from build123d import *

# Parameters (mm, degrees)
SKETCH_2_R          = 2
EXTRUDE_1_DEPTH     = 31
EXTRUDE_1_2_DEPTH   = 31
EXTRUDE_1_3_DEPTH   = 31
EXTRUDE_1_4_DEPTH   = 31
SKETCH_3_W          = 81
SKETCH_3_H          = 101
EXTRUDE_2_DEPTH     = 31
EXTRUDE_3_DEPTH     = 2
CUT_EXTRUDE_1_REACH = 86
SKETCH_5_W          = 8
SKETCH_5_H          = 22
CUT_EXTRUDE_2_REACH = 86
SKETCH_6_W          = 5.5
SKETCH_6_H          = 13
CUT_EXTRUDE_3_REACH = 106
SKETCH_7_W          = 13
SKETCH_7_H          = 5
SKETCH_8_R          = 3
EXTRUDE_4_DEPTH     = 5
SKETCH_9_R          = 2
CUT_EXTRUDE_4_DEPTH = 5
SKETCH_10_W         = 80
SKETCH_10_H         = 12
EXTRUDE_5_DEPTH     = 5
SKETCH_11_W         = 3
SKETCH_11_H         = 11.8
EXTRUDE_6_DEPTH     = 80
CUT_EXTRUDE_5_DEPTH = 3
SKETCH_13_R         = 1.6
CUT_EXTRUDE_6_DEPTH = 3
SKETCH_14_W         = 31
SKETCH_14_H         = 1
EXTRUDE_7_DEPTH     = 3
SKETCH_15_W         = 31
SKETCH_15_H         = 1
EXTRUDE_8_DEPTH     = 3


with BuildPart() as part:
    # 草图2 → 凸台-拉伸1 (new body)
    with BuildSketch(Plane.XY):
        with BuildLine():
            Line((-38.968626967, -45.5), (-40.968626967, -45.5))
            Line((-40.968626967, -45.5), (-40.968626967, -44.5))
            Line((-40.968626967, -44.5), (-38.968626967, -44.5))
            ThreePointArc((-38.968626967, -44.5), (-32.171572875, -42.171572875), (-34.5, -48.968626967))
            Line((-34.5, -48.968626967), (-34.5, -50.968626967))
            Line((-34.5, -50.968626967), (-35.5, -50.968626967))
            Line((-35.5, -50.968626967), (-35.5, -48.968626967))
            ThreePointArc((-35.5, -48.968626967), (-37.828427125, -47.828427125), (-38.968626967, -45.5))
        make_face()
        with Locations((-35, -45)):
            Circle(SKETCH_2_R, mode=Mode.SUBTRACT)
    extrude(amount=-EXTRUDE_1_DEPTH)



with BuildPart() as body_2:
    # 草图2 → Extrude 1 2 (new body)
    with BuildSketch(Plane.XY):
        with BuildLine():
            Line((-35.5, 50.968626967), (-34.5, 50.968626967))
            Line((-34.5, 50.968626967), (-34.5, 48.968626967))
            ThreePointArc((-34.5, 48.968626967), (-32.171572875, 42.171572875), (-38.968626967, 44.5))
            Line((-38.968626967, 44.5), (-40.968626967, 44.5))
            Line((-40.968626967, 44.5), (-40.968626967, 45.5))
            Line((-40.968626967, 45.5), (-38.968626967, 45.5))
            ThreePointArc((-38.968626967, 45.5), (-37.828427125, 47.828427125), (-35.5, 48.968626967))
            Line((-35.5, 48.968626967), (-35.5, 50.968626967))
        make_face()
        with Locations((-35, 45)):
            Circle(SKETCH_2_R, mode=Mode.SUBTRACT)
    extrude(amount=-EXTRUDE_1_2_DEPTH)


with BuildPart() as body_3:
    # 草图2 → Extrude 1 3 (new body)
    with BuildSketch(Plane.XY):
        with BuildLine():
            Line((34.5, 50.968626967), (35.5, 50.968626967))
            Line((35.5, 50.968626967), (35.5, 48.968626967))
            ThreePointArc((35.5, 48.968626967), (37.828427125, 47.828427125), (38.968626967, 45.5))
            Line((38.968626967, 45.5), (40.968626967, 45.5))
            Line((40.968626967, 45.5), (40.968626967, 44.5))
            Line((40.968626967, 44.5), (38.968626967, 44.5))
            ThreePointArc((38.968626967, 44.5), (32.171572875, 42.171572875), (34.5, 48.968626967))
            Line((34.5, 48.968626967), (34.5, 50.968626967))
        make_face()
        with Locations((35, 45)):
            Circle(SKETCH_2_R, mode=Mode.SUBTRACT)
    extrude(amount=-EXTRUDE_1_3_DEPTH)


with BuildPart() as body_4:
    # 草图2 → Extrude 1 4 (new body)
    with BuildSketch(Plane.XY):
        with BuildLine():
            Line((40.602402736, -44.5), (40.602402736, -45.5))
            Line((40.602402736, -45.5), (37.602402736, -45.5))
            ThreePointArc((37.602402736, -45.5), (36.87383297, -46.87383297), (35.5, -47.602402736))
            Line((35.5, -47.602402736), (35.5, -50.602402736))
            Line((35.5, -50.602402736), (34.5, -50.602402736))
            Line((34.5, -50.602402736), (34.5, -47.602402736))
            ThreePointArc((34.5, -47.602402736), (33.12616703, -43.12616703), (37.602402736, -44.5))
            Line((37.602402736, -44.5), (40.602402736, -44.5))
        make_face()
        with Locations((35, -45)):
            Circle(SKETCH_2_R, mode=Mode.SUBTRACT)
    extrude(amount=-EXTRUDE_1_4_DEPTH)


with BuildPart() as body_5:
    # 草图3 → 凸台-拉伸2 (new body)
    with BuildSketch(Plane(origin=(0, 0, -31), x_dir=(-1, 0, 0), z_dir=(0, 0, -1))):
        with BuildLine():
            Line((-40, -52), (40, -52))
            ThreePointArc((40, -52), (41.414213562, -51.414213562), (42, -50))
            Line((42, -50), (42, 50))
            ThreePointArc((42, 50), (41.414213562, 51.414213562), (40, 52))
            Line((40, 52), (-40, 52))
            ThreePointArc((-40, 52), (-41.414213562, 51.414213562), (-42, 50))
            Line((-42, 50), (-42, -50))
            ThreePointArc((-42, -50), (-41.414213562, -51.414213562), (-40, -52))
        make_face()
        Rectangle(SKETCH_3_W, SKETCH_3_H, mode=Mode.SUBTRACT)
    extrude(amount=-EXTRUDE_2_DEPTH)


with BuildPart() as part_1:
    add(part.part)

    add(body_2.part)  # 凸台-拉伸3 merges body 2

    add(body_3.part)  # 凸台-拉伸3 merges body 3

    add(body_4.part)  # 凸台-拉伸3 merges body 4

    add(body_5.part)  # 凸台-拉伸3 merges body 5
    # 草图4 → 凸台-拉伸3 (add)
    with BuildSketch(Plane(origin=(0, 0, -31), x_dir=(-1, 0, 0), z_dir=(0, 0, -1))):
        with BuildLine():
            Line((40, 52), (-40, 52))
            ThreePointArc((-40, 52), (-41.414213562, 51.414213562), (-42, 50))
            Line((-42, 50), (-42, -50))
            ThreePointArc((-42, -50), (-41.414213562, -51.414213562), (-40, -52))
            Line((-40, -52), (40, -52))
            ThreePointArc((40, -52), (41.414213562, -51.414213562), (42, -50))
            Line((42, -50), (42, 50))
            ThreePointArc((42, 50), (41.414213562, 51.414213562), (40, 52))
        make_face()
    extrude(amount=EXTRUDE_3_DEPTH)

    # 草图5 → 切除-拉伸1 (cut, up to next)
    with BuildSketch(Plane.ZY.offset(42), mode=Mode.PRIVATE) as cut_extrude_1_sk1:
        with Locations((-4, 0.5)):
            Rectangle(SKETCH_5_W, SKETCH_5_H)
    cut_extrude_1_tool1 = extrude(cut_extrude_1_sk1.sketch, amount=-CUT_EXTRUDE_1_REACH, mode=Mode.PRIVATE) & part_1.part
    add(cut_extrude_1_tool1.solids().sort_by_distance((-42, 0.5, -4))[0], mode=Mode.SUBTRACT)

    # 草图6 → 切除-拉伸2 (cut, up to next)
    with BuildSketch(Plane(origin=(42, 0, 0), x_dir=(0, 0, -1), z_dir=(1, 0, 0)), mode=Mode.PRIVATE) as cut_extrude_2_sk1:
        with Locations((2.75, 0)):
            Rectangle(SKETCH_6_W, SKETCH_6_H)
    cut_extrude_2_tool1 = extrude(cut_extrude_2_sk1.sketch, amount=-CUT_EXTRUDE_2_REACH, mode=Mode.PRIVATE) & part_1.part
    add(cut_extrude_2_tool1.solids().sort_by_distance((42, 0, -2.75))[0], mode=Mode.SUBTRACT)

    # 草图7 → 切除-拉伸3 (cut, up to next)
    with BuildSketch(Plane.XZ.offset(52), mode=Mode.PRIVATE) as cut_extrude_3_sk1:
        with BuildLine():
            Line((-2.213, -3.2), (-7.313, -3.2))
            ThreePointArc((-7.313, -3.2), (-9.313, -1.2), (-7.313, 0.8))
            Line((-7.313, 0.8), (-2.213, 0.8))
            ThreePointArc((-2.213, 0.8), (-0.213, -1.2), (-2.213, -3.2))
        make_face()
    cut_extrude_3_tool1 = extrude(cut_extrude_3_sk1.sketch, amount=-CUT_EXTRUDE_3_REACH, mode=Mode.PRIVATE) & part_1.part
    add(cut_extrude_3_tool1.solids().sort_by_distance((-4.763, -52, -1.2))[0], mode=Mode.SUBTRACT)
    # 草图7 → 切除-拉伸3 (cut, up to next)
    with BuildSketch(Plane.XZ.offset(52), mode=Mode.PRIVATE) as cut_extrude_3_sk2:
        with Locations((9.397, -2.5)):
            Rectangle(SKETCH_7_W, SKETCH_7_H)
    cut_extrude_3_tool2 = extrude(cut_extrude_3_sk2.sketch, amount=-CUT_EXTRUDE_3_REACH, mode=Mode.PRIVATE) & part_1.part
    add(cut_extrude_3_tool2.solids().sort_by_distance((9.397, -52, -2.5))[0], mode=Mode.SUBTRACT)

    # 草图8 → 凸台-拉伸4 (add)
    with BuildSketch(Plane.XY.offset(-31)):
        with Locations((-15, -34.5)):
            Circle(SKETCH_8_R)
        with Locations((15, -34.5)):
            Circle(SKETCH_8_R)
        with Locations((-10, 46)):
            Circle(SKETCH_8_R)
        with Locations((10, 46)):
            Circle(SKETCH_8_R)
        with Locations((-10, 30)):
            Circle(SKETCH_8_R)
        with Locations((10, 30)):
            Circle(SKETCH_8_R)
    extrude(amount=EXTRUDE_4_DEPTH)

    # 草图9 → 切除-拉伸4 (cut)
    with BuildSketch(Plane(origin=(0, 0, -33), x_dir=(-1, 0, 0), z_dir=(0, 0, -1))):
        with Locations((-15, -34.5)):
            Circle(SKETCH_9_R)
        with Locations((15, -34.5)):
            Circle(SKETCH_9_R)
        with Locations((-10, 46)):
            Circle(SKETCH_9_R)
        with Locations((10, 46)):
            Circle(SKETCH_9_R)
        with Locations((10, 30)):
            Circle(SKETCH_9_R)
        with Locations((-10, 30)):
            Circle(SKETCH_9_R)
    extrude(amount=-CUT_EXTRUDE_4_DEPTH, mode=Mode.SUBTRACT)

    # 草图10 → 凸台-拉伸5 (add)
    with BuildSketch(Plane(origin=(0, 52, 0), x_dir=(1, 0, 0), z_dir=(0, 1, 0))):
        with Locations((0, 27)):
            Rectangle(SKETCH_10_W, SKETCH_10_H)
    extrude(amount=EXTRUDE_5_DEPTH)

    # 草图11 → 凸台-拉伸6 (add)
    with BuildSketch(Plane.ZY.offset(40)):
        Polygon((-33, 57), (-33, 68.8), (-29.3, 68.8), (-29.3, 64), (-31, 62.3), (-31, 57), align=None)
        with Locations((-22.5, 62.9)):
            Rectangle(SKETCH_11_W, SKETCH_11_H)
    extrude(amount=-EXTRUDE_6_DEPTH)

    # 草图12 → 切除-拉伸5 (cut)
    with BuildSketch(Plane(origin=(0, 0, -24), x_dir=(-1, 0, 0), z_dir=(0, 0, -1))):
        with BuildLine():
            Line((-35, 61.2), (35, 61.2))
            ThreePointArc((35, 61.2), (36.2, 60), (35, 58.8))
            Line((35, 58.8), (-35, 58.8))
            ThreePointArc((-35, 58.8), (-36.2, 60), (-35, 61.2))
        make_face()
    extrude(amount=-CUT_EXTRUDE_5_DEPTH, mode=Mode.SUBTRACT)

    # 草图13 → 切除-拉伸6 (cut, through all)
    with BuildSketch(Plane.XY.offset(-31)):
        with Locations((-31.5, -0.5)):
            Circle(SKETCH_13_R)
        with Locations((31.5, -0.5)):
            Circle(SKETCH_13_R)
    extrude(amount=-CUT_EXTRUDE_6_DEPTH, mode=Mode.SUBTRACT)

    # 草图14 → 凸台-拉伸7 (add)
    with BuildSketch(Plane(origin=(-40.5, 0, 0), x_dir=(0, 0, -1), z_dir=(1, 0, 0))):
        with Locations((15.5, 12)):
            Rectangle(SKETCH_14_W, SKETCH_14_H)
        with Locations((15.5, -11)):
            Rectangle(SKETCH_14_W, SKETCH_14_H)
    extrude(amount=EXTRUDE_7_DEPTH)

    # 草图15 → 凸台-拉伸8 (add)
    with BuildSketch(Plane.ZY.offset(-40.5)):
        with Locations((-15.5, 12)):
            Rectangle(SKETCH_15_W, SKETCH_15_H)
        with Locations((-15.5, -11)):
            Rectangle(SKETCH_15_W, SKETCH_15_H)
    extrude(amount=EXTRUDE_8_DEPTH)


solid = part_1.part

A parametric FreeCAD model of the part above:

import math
import FreeCAD as App
import Part
import Sketcher
from FreeCAD import Vector
Q = App.Units.Quantity


def add_polygon(sketch, points):
    """Adds a closed chain of lines whose ends are joined by coincident constraints."""
    first, n = sketch.GeometryCount, len(points)
    for a, b in zip(points, points[1:] + points[:1]):
        sketch.addGeometry(Part.LineSegment(App.Vector(*a, 0), App.Vector(*b, 0)), False)
    for i in range(n):
        sketch.addConstraint(Sketcher.Constraint("Coincident", first + i, 2, first + (i + 1) % n, 1))

doc = App.newDocument("Part")
body = doc.addObject("PartDesign::Body", "Body")

sketch1 = body.newObject("Sketcher::SketchObject", "Sketch")
sketch1.AttachmentSupport = (doc.getObject("XY_Plane"), [""])
sketch1.MapMode = "FlatFace"
sketch1.addGeometry([
    Part.LineSegment(Vector(-41, -45.5, 0), Vector(-39, -45.5, 0)),
    Part.ArcOfCircle(Part.Circle(Vector(-35, -45, 0), Vector(0, 0, 1), 4), math.radians(-173), math.radians(-97)),
    Part.LineSegment(Vector(-35.5, -49, 0), Vector(-35.5, -51, 0)),
    Part.LineSegment(Vector(-35.5, -51, 0), Vector(-34.5, -51, 0)),
    Part.LineSegment(Vector(-34.5, -51, 0), Vector(-34.5, -49, 0)),
    Part.ArcOfCircle(Part.Circle(Vector(-35, -45, 0), Vector(0, 0, 1), 4), math.radians(-83), math.radians(173)),
    Part.LineSegment(Vector(-39, -44.5, 0), Vector(-41, -44.5, 0)),
    Part.LineSegment(Vector(-41, -44.5, 0), Vector(-41, -45.5, 0)),
    Part.Circle(Vector(-35, -45, 0), Vector(0, 0, 1), 2),
], False)
sketch1.addConstraint([
    Sketcher.Constraint("Coincident", 0, 2, 1, 1),
    Sketcher.Constraint("Coincident", 1, 2, 2, 1),
    Sketcher.Constraint("Coincident", 2, 2, 3, 1),
    Sketcher.Constraint("Coincident", 3, 2, 4, 1),
    Sketcher.Constraint("Coincident", 4, 2, 5, 1),
    Sketcher.Constraint("Coincident", 5, 2, 6, 1),
    Sketcher.Constraint("Coincident", 6, 2, 7, 1),
    Sketcher.Constraint("Coincident", 7, 2, 0, 1),
    Sketcher.Constraint("Horizontal", 0),
    Sketcher.Constraint("Vertical", 2),
    Sketcher.Constraint("Horizontal", 3),
    Sketcher.Constraint("Vertical", 4),
    Sketcher.Constraint("Horizontal", 6),
    Sketcher.Constraint("Vertical", 7),
    Sketcher.Constraint("Coincident", 5, 3, 1, 3),
    Sketcher.Constraint("Coincident", 8, 3, 1, 3),
    Sketcher.Constraint("Equal", 1, 5),
    Sketcher.Constraint("Horizontal", 1, 2, 4, 2),
    Sketcher.Constraint("Vertical", 0, 2, 5, 2),
    Sketcher.Constraint("Equal", 6, 2),
    Sketcher.Constraint("Equal", 3, 7),
    Sketcher.Constraint("Diameter", 8, 4.0),
    Sketcher.Constraint("Radius", 1, 4.0),
    Sketcher.Constraint("DistanceX", 0, 1, 0, 2, 2.0),
    Sketcher.Constraint("DistanceX", 3, 1, 3, 2, 1.0),
    Sketcher.Constraint("DistanceX", 1, 3, -1, 1, 35.0),
    Sketcher.Constraint("DistanceY", 1, 3, -1, 1, 45.0),
])
pad1 = body.newObject("PartDesign::Pad", "Pad")
pad1.Profile = sketch1
pad1.Length = 31
pad1.Reversed = True
body2 = doc.addObject("PartDesign::Body", "Body001")

sketch2 = body2.newObject("Sketcher::SketchObject", "Sketch001")
sketch2.AttachmentSupport = (doc.getObject("XY_Plane001"), [""])
sketch2.MapMode = "FlatFace"
sketch2.addGeometry([
    Part.LineSegment(Vector(-34.5, 51, 0), Vector(-35.5, 51, 0)),
    Part.LineSegment(Vector(-35.5, 51, 0), Vector(-35.5, 49, 0)),
    Part.ArcOfCircle(Part.Circle(Vector(-35, 45, 0), Vector(0, 0, 1), 4), math.radians(97), math.radians(173)),
    Part.LineSegment(Vector(-39, 45.5, 0), Vector(-41, 45.5, 0)),
    Part.LineSegment(Vector(-41, 45.5, 0), Vector(-41, 44.5, 0)),
    Part.LineSegment(Vector(-41, 44.5, 0), Vector(-39, 44.5, 0)),
    Part.ArcOfCircle(Part.Circle(Vector(-35, 45, 0), Vector(0, 0, 1), 4), math.radians(-173), math.radians(83)),
    Part.LineSegment(Vector(-34.5, 49, 0), Vector(-34.5, 51, 0)),
    Part.Circle(Vector(-35, 45, 0), Vector(0, 0, 1), 2),
], False)
sketch2.addConstraint([
    Sketcher.Constraint("Coincident", 0, 2, 1, 1),
    Sketcher.Constraint("Coincident", 1, 2, 2, 1),
    Sketcher.Constraint("Coincident", 2, 2, 3, 1),
    Sketcher.Constraint("Coincident", 3, 2, 4, 1),
    Sketcher.Constraint("Coincident", 4, 2, 5, 1),
    Sketcher.Constraint("Coincident", 5, 2, 6, 1),
    Sketcher.Constraint("Coincident", 6, 2, 7, 1),
    Sketcher.Constraint("Coincident", 7, 2, 0, 1),
    Sketcher.Constraint("Horizontal", 0),
    Sketcher.Constraint("Vertical", 1),
    Sketcher.Constraint("Horizontal", 3),
    Sketcher.Constraint("Vertical", 4),
    Sketcher.Constraint("Horizontal", 5),
    Sketcher.Constraint("Vertical", 7),
    Sketcher.Constraint("Coincident", 6, 3, 2, 3),
    Sketcher.Constraint("Coincident", 8, 3, 2, 3),
    Sketcher.Constraint("Equal", 2, 6),
    Sketcher.Constraint("Horizontal", 1, 2, 6, 2),
    Sketcher.Constraint("Vertical", 2, 2, 5, 2),
    Sketcher.Constraint("Equal", 5, 1),
    Sketcher.Constraint("Equal", 0, 4),
    Sketcher.Constraint("Diameter", 8, 4.0),
    Sketcher.Constraint("Radius", 2, 4.0),
    Sketcher.Constraint("DistanceX", 0, 2, 0, 1, 1.0),
    Sketcher.Constraint("DistanceX", 3, 2, 3, 1, 2.0),
    Sketcher.Constraint("DistanceX", 2, 3, -1, 1, 35.0),
    Sketcher.Constraint("DistanceY", -1, 1, 2, 3, 45.0),
])
pad2 = body2.newObject("PartDesign::Pad", "Pad001")
pad2.Profile = sketch2
pad2.Length = 31
pad2.Reversed = True
body3 = doc.addObject("PartDesign::Body", "Body002")

sketch3 = body3.newObject("Sketcher::SketchObject", "Sketch002")
sketch3.AttachmentSupport = (doc.getObject("XY_Plane002"), [""])
sketch3.MapMode = "FlatFace"
sketch3.addGeometry([
    Part.LineSegment(Vector(35.5, 51, 0), Vector(34.5, 51, 0)),
    Part.LineSegment(Vector(34.5, 51, 0), Vector(34.5, 49, 0)),
    Part.ArcOfCircle(Part.Circle(Vector(35, 45, 0), Vector(0, 0, 1), 4), math.radians(97), math.radians(353)),
    Part.LineSegment(Vector(39, 44.5, 0), Vector(41, 44.5, 0)),
    Part.LineSegment(Vector(41, 44.5, 0), Vector(41, 45.5, 0)),
    Part.LineSegment(Vector(41, 45.5, 0), Vector(39, 45.5, 0)),
    Part.ArcOfCircle(Part.Circle(Vector(35, 45, 0), Vector(0, 0, 1), 4), math.radians(7), math.radians(83)),
    Part.LineSegment(Vector(35.5, 49, 0), Vector(35.5, 51, 0)),
    Part.Circle(Vector(35, 45, 0), Vector(0, 0, 1), 2),
], False)
sketch3.addConstraint([
    Sketcher.Constraint("Coincident", 0, 2, 1, 1),
    Sketcher.Constraint("Coincident", 1, 2, 2, 1),
    Sketcher.Constraint("Coincident", 2, 2, 3, 1),
    Sketcher.Constraint("Coincident", 3, 2, 4, 1),
    Sketcher.Constraint("Coincident", 4, 2, 5, 1),
    Sketcher.Constraint("Coincident", 5, 2, 6, 1),
    Sketcher.Constraint("Coincident", 6, 2, 7, 1),
    Sketcher.Constraint("Coincident", 7, 2, 0, 1),
    Sketcher.Constraint("Horizontal", 0),
    Sketcher.Constraint("Vertical", 1),
    Sketcher.Constraint("Horizontal", 3),
    Sketcher.Constraint("Vertical", 4),
    Sketcher.Constraint("Horizontal", 5),
    Sketcher.Constraint("Vertical", 7),
    Sketcher.Constraint("Coincident", 6, 3, 2, 3),
    Sketcher.Constraint("Coincident", 8, 3, 2, 3),
    Sketcher.Constraint("Equal", 2, 6),
    Sketcher.Constraint("Horizontal", 1, 2, 6, 2),
    Sketcher.Constraint("Vertical", 2, 2, 5, 2),
    Sketcher.Constraint("Equal", 5, 1),
    Sketcher.Constraint("Equal", 0, 4),
    Sketcher.Constraint("Diameter", 8, 4.0),
    Sketcher.Constraint("Radius", 2, 4.0),
    Sketcher.Constraint("DistanceX", 0, 2, 0, 1, 1.0),
    Sketcher.Constraint("DistanceX", 3, 1, 3, 2, 2.0),
    Sketcher.Constraint("DistanceX", -1, 1, 2, 3, 35.0),
    Sketcher.Constraint("DistanceY", -1, 1, 2, 3, 45.0),
])
pad3 = body3.newObject("PartDesign::Pad", "Pad002")
pad3.Profile = sketch3
pad3.Length = 31
pad3.Reversed = True
body4 = doc.addObject("PartDesign::Body", "Body003")

sketch4 = body4.newObject("Sketcher::SketchObject", "Sketch003")
sketch4.AttachmentSupport = (doc.getObject("XY_Plane003"), [""])
sketch4.MapMode = "FlatFace"
sketch4.addGeometry([
    Part.LineSegment(Vector(40.6, -45.5, 0), Vector(40.6, -44.5, 0)),
    Part.LineSegment(Vector(40.6, -44.5, 0), Vector(37.6, -44.5, 0)),
    Part.ArcOfCircle(Part.Circle(Vector(35, -45, 0), Vector(0, 0, 1), 2.6), math.radians(11), math.radians(259)),
    Part.LineSegment(Vector(34.5, -47.6, 0), Vector(34.5, -50.6, 0)),
    Part.LineSegment(Vector(34.5, -50.6, 0), Vector(35.5, -50.6, 0)),
    Part.LineSegment(Vector(35.5, -50.6, 0), Vector(35.5, -47.6, 0)),
    Part.ArcOfCircle(Part.Circle(Vector(35, -45, 0), Vector(0, 0, 1), 2.7), math.radians(-79), math.radians(-11)),
    Part.LineSegment(Vector(37.6, -45.5, 0), Vector(40.6, -45.5, 0)),
    Part.Circle(Vector(35, -45, 0), Vector(0, 0, 1), 2),
], False)
sketch4.addConstraint([
    Sketcher.Constraint("Coincident", 0, 2, 1, 1),
    Sketcher.Constraint("Coincident", 1, 2, 2, 1),
    Sketcher.Constraint("Coincident", 2, 2, 3, 1),
    Sketcher.Constraint("Coincident", 3, 2, 4, 1),
    Sketcher.Constraint("Coincident", 4, 2, 5, 1),
    Sketcher.Constraint("Coincident", 5, 2, 6, 1),
    Sketcher.Constraint("Coincident", 6, 2, 7, 1),
    Sketcher.Constraint("Coincident", 7, 2, 0, 1),
    Sketcher.Constraint("Vertical", 0),
    Sketcher.Constraint("Horizontal", 1),
    Sketcher.Constraint("Vertical", 3),
    Sketcher.Constraint("Horizontal", 4),
    Sketcher.Constraint("Vertical", 5),
    Sketcher.Constraint("Horizontal", 7),
    Sketcher.Constraint("Coincident", 6, 3, 2, 3),
    Sketcher.Constraint("Coincident", 8, 3, 2, 3),
    Sketcher.Constraint("Equal", 2, 6),
    Sketcher.Constraint("Horizontal", 2, 2, 5, 2),
    Sketcher.Constraint("Vertical", 1, 2, 6, 2),
    Sketcher.Constraint("Equal", 4, 0),
    Sketcher.Constraint("Equal", 7, 3),
    Sketcher.Constraint("Diameter", 8, 4.0),
    Sketcher.Constraint("DistanceX", 1, 2, 1, 1, 3.0),
    Sketcher.Constraint("DistanceX", 4, 1, 4, 2, 1.0),
    Sketcher.Constraint("Radius", 2, 2.65),
    Sketcher.Constraint("DistanceX", -1, 1, 2, 3, 35.0),
    Sketcher.Constraint("DistanceY", 2, 3, -1, 1, 45.0),
])
pad4 = body4.newObject("PartDesign::Pad", "Pad003")
pad4.Profile = sketch4
pad4.Length = 31
pad4.Reversed = True
body5 = doc.addObject("PartDesign::Body", "Body004")

sketch5 = body5.newObject("Sketcher::SketchObject", "Sketch004")
sketch5.AttachmentSupport = (doc.getObject("XY_Plane004"), [""])
sketch5.MapMode = "FlatFace"
sketch5.AttachmentOffset = App.Placement(Vector(0, 0, -31), App.Rotation())
sketch5.addGeometry(Part.LineSegment(Vector(40, -52, 0), Vector(-40, -52, 0)), False)
sketch5.addGeometry(Part.ArcOfCircle(Part.Circle(Vector(-40, -50, 0), Vector(0, 0, 1), 2), math.radians(-180), math.radians(-90)), False)
sketch5.addGeometry(Part.LineSegment(Vector(-42, -50, 0), Vector(-42, 50, 0)), False)
sketch5.addGeometry(Part.ArcOfCircle(Part.Circle(Vector(-40, 50, 0), Vector(0, 0, 1), 2), math.radians(90), math.radians(180)), False)
sketch5.addGeometry(Part.LineSegment(Vector(-40, 52, 0), Vector(40, 52, 0)), False)
sketch5.addGeometry(Part.ArcOfCircle(Part.Circle(Vector(40, 50, 0), Vector(0, 0, 1), 2), math.radians(0), math.radians(90)), False)
sketch5.addGeometry(Part.LineSegment(Vector(42, 50, 0), Vector(42, -50, 0)), False)
sketch5.addGeometry(Part.ArcOfCircle(Part.Circle(Vector(40, -50, 0), Vector(0, 0, 1), 2), math.radians(-90), math.radians(0)), False)
add_polygon(sketch5, [(-40.5, -50.5), (40.5, -50.5), (40.5, 50.5), (-40.5, 50.5)])
sketch5.addConstraint([
    Sketcher.Constraint("Tangent", 0, 2, 1, 2),
    Sketcher.Constraint("Tangent", 1, 1, 2, 1),
    Sketcher.Constraint("Tangent", 2, 2, 3, 2),
    Sketcher.Constraint("Tangent", 3, 1, 4, 1),
    Sketcher.Constraint("Tangent", 4, 2, 5, 2),
    Sketcher.Constraint("Tangent", 5, 1, 6, 1),
    Sketcher.Constraint("Tangent", 6, 2, 7, 2),
    Sketcher.Constraint("Tangent", 7, 1, 0, 1),
    Sketcher.Constraint("Horizontal", 0),
    Sketcher.Constraint("Vertical", 2),
    Sketcher.Constraint("Horizontal", 4),
    Sketcher.Constraint("Vertical", 6),
    Sketcher.Constraint("Horizontal", 8),
    Sketcher.Constraint("Vertical", 9),
    Sketcher.Constraint("Horizontal", 10),
    Sketcher.Constraint("Vertical", 11),
    Sketcher.Constraint("Equal", 1, 3),
    Sketcher.Constraint("Equal", 3, 5),
    Sketcher.Constraint("Equal", 5, 7),
    Sketcher.Constraint("Symmetric", 1, 3, 5, 3, -1, 1),
    Sketcher.Constraint("Symmetric", 8, 2, 10, 2, -1, 1),
    Sketcher.Constraint("Radius", 1, 2.0),
    Sketcher.Constraint("DistanceX", 0, 2, 0, 1, 80.0),
    Sketcher.Constraint("DistanceX", 8, 1, 8, 2, 81.0),
    Sketcher.Constraint("DistanceY", 2, 1, 2, 2, 100.0),
    Sketcher.Constraint("DistanceY", 9, 1, 9, 2, 101.0),
])
pad5 = body5.newObject("PartDesign::Pad", "Pad004")
pad5.Profile = sketch5
pad5.Length = 31
body.AllowCompound = True
doc.recompute()

boolean = body.newObject("PartDesign::Boolean", "Boolean")
boolean.Type = "Fuse"
boolean.addObjects([body2])
doc.recompute()

boolean2 = body.newObject("PartDesign::Boolean", "Boolean001")
boolean2.Type = "Fuse"
boolean2.addObjects([body3])
doc.recompute()

boolean3 = body.newObject("PartDesign::Boolean", "Boolean002")
boolean3.Type = "Fuse"
boolean3.addObjects([body4])
doc.recompute()

boolean4 = body.newObject("PartDesign::Boolean", "Boolean003")
boolean4.Type = "Fuse"
boolean4.addObjects([body5])

sketch6 = body.newObject("Sketcher::SketchObject", "Sketch005")
sketch6.AttachmentSupport = (doc.getObject("XY_Plane"), [""])
sketch6.MapMode = "FlatFace"
sketch6.AttachmentOffset = App.Placement(Vector(0, 0, -31), App.Rotation())
sketch6.addGeometry([
    Part.LineSegment(Vector(-40, 52, 0), Vector(40, 52, 0)),
    Part.ArcOfCircle(Part.Circle(Vector(40, 50, 0), Vector(0, 0, 1), 2), math.radians(0), math.radians(90)),
    Part.LineSegment(Vector(42, 50, 0), Vector(42, -50, 0)),
    Part.ArcOfCircle(Part.Circle(Vector(40, -50, 0), Vector(0, 0, 1), 2), math.radians(-90), math.radians(0)),
    Part.LineSegment(Vector(40, -52, 0), Vector(-40, -52, 0)),
    Part.ArcOfCircle(Part.Circle(Vector(-40, -50, 0), Vector(0, 0, 1), 2), math.radians(-180), math.radians(-90)),
    Part.LineSegment(Vector(-42, -50, 0), Vector(-42, 50, 0)),
    Part.ArcOfCircle(Part.Circle(Vector(-40, 50, 0), Vector(0, 0, 1), 2), math.radians(90), math.radians(180)),
], False)
sketch6.addConstraint([
    Sketcher.Constraint("Tangent", 0, 2, 1, 2),
    Sketcher.Constraint("Tangent", 1, 1, 2, 1),
    Sketcher.Constraint("Tangent", 2, 2, 3, 2),
    Sketcher.Constraint("Tangent", 3, 1, 4, 1),
    Sketcher.Constraint("Tangent", 4, 2, 5, 2),
    Sketcher.Constraint("Tangent", 5, 1, 6, 1),
    Sketcher.Constraint("Tangent", 6, 2, 7, 2),
    Sketcher.Constraint("Tangent", 7, 1, 0, 1),
    Sketcher.Constraint("Horizontal", 0),
    Sketcher.Constraint("Vertical", 2),
    Sketcher.Constraint("Horizontal", 4),
    Sketcher.Constraint("Vertical", 6),
    Sketcher.Constraint("Equal", 1, 3),
    Sketcher.Constraint("Equal", 3, 5),
    Sketcher.Constraint("Equal", 5, 7),
    Sketcher.Constraint("Symmetric", 1, 3, 5, 3, -1, 1),
    Sketcher.Constraint("Radius", 1, 2.0),
    Sketcher.Constraint("DistanceX", 0, 1, 0, 2, 80.0),
    Sketcher.Constraint("DistanceY", 2, 2, 2, 1, 100.0),
])
pad6 = body.newObject("PartDesign::Pad", "Pad005")
pad6.Profile = sketch6
pad6.Length = 2
pad6.Reversed = True

sketch7 = body.newObject("Sketcher::SketchObject", "Sketch006")
sketch7.AttachmentSupport = (doc.getObject("YZ_Plane"), [""])
sketch7.MapMode = "FlatFace"
sketch7.AttachmentOffset = App.Placement(Vector(0, 0, -42), App.Rotation())
add_polygon(sketch7, [(12, -8), (-10, -8), (-10, 0), (12, 0)])
sketch7.addConstraint([
    Sketcher.Constraint("Horizontal", 0),
    Sketcher.Constraint("Vertical", 1),
    Sketcher.Constraint("Horizontal", 2),
    Sketcher.Constraint("Vertical", 3),
    Sketcher.Constraint("PointOnObject", 1, 2, -1),
    Sketcher.Constraint("DistanceX", 0, 2, 0, 1, 22.0),
    Sketcher.Constraint("DistanceY", 1, 1, 1, 2, 8.0),
    Sketcher.Constraint("DistanceX", 0, 2, -1, 1, 10.5),
])
pocket1 = body.newObject("PartDesign::Pocket", "Pocket")
pocket1.Profile = sketch7
pocket1.Type = "UpToFirst"
pocket1.Reversed = True

sketch8 = body.newObject("Sketcher::SketchObject", "Sketch007")
sketch8.AttachmentSupport = (doc.getObject("YZ_Plane"), [""])
sketch8.MapMode = "FlatFace"
sketch8.AttachmentOffset = App.Placement(Vector(0, 0, 42), App.Rotation())
add_polygon(sketch8, [(6, 0), (-6, 0), (-6, -6), (6, -6)])
sketch8.addConstraint([
    Sketcher.Constraint("Horizontal", 0),
    Sketcher.Constraint("Vertical", 1),
    Sketcher.Constraint("Horizontal", 2),
    Sketcher.Constraint("Vertical", 3),
    Sketcher.Constraint("Symmetric", 0, 2, 3, 2, -1, 1),
    Sketcher.Constraint("DistanceX", 0, 2, 0, 1, 13.0),
    Sketcher.Constraint("DistanceY", 1, 2, 1, 1, 5.5),
])
pocket2 = body.newObject("PartDesign::Pocket", "Pocket001")
pocket2.Profile = sketch8
pocket2.Type = "UpToFirst"

sketch9 = body.newObject("Sketcher::SketchObject", "Sketch008")
sketch9.AttachmentSupport = (doc.getObject("XZ_Plane"), [""])
sketch9.MapMode = "FlatFace"
sketch9.AttachmentOffset = App.Placement(Vector(0, 0, 52), App.Rotation())
sketch9.addGeometry([
    Part.LineSegment(Vector(-7.3, -3.2, 0), Vector(-2.2, -3.2, 0)),
    Part.ArcOfCircle(Part.Circle(Vector(-2.2, -1.2, 0), Vector(0, 0, 1), 2), math.radians(-90), math.radians(90)),
    Part.LineSegment(Vector(-2.2, 0.8, 0), Vector(-7.3, 0.8, 0)),
    Part.ArcOfCircle(Part.Circle(Vector(-7.3, -1.2, 0), Vector(0, 0, 1), 2), math.radians(90), math.radians(270)),
], False)
sketch9.addConstraint([
    Sketcher.Constraint("Tangent", 0, 2, 1, 1),
    Sketcher.Constraint("Tangent", 1, 2, 2, 1),
    Sketcher.Constraint("Tangent", 2, 2, 3, 1),
    Sketcher.Constraint("Tangent", 3, 2, 0, 1),
    Sketcher.Constraint("Horizontal", 0),
    Sketcher.Constraint("Horizontal", 2),
    Sketcher.Constraint("Radius", 1, 2.0),
    Sketcher.Constraint("DistanceX", 0, 1, 0, 2, 5.1),
    Sketcher.Constraint("DistanceY", 1, 3, -1, 1, 1.2),
    Sketcher.Constraint("DistanceX", 1, 3, -1, 1, 2.213),
])
pocket3 = body.newObject("PartDesign::Pocket", "Pocket002")
pocket3.Profile = sketch9
pocket3.Type = "UpToFirst"

sketch10 = body.newObject("Sketcher::SketchObject", "Sketch009")
sketch10.AttachmentSupport = (doc.getObject("XZ_Plane"), [""])
sketch10.MapMode = "FlatFace"
sketch10.AttachmentOffset = App.Placement(Vector(0, 0, 52), App.Rotation())
add_polygon(sketch10, [(3, 0), (3, -5), (16, -5), (16, 0)])
sketch10.addConstraint([
    Sketcher.Constraint("Vertical", 0),
    Sketcher.Constraint("Horizontal", 1),
    Sketcher.Constraint("Vertical", 2),
    Sketcher.Constraint("Horizontal", 3),
    Sketcher.Constraint("PointOnObject", 2, 2, -1),
    Sketcher.Constraint("DistanceX", 1, 1, 1, 2, 13.0),
    Sketcher.Constraint("DistanceY", 0, 2, 0, 1, 5.0),
    Sketcher.Constraint("DistanceX", -1, 1, 0, 2, 2.897),
])
pocket4 = body.newObject("PartDesign::Pocket", "Pocket003")
pocket4.Profile = sketch10
pocket4.Type = "UpToFirst"

sketch11 = body.newObject("Sketcher::SketchObject", "Sketch010")
sketch11.AttachmentSupport = (doc.getObject("XY_Plane"), [""])
sketch11.MapMode = "FlatFace"
sketch11.AttachmentOffset = App.Placement(Vector(0, 0, -31), App.Rotation())
sketch11.addGeometry([
    Part.Circle(Vector(-15, -34.5, 0), Vector(0, 0, 1), 3),
    Part.Circle(Vector(15, -34.5, 0), Vector(0, 0, 1), 3),
    Part.Circle(Vector(-10, 46, 0), Vector(0, 0, 1), 3),
    Part.Circle(Vector(10, 46, 0), Vector(0, 0, 1), 3),
    Part.Circle(Vector(-10, 30, 0), Vector(0, 0, 1), 3),
    Part.Circle(Vector(10, 30, 0), Vector(0, 0, 1), 3),
], False)
sketch11.addConstraint([
    Sketcher.Constraint("Equal", 0, 1),
    Sketcher.Constraint("Equal", 1, 2),
    Sketcher.Constraint("Equal", 2, 3),
    Sketcher.Constraint("Equal", 3, 4),
    Sketcher.Constraint("Equal", 4, 5),
    Sketcher.Constraint("Symmetric", 0, 3, 1, 3, -2),
    Sketcher.Constraint("Symmetric", 2, 3, 3, 3, -2),
    Sketcher.Constraint("Symmetric", 4, 3, 5, 3, -2),
    Sketcher.Constraint("Vertical", 2, 3, 4, 3),
    Sketcher.Constraint("Diameter", 0, 6.0),
    Sketcher.Constraint("DistanceX", 0, 3, -1, 1, 15.0),
    Sketcher.Constraint("DistanceX", 2, 3, -1, 1, 10.0),
    Sketcher.Constraint("DistanceY", -1, 1, 2, 3, 46.0),
    Sketcher.Constraint("DistanceY", -1, 1, 4, 3, 30.0),
    Sketcher.Constraint("DistanceY", 0, 3, -1, 1, 34.5),
])
pad7 = body.newObject("PartDesign::Pad", "Pad006")
pad7.Profile = sketch11
pad7.Length = 5

sketch12 = body.newObject("Sketcher::SketchObject", "Sketch011")
sketch12.AttachmentSupport = (doc.getObject("XY_Plane"), [""])
sketch12.MapMode = "FlatFace"
sketch12.AttachmentOffset = App.Placement(Vector(0, 0, -33), App.Rotation())
sketch12.addGeometry([
    Part.Circle(Vector(15, -34.5, 0), Vector(0, 0, 1), 2),
    Part.Circle(Vector(-15, -34.5, 0), Vector(0, 0, 1), 2),
    Part.Circle(Vector(10, 46, 0), Vector(0, 0, 1), 2),
    Part.Circle(Vector(-10, 46, 0), Vector(0, 0, 1), 2),
    Part.Circle(Vector(-10, 30, 0), Vector(0, 0, 1), 2),
    Part.Circle(Vector(10, 30, 0), Vector(0, 0, 1), 2),
], False)
sketch12.addConstraint([
    Sketcher.Constraint("Equal", 0, 1),
    Sketcher.Constraint("Equal", 1, 2),
    Sketcher.Constraint("Equal", 2, 3),
    Sketcher.Constraint("Equal", 3, 4),
    Sketcher.Constraint("Equal", 4, 5),
    Sketcher.Constraint("Symmetric", 0, 3, 1, 3, -2),
    Sketcher.Constraint("Symmetric", 2, 3, 3, 3, -2),
    Sketcher.Constraint("Symmetric", 4, 3, 5, 3, -2),
    Sketcher.Constraint("Vertical", 3, 3, 4, 3),
    Sketcher.Constraint("Diameter", 0, 4.0),
    Sketcher.Constraint("DistanceX", -1, 1, 0, 3, 15.0),
    Sketcher.Constraint("DistanceX", -1, 1, 2, 3, 10.0),
    Sketcher.Constraint("DistanceY", -1, 1, 2, 3, 46.0),
    Sketcher.Constraint("DistanceY", -1, 1, 4, 3, 30.0),
    Sketcher.Constraint("DistanceY", 0, 3, -1, 1, 34.5),
])
pocket5 = body.newObject("PartDesign::Pocket", "Pocket004")
pocket5.Profile = sketch12
pocket5.Length = 5
pocket5.Reversed = True

sketch13 = body.newObject("Sketcher::SketchObject", "Sketch012")
sketch13.AttachmentSupport = (doc.getObject("XZ_Plane"), [""])
sketch13.MapMode = "FlatFace"
sketch13.AttachmentOffset = App.Placement(Vector(0, 0, -52), App.Rotation())
add_polygon(sketch13, [(-40, -33), (-40, -21), (40, -21), (40, -33)])
sketch13.addConstraint([
    Sketcher.Constraint("Vertical", 0),
    Sketcher.Constraint("Horizontal", 1),
    Sketcher.Constraint("Vertical", 2),
    Sketcher.Constraint("Horizontal", 3),
    Sketcher.Constraint("DistanceX", 1, 1, 1, 2, 80.0),
    Sketcher.Constraint("DistanceY", 0, 1, 0, 2, 12.0),
    Sketcher.Constraint("DistanceX", 0, 2, -1, 1, 40.0),
    Sketcher.Constraint("DistanceY", 0, 2, -1, 1, 21.0),
])
pad8 = body.newObject("PartDesign::Pad", "Pad007")
pad8.Profile = sketch13
pad8.Length = 5
pad8.Reversed = True

sketch14 = body.newObject("Sketcher::SketchObject", "Sketch013")
sketch14.AttachmentSupport = (doc.getObject("YZ_Plane"), [""])
sketch14.MapMode = "FlatFace"
sketch14.AttachmentOffset = App.Placement(Vector(0, 0, -40), App.Rotation())
add_polygon(sketch14, [(68.8, -33), (57, -33), (57, -31), (62.3, -31), (64, -29.3), (68.8, -29.3)])
add_polygon(sketch14, [(68.8, -24), (57, -24), (57, -21), (68.8, -21)])
sketch14.addConstraint([
    Sketcher.Constraint("Horizontal", 0),
    Sketcher.Constraint("Vertical", 1),
    Sketcher.Constraint("Horizontal", 2),
    Sketcher.Constraint("Horizontal", 4),
    Sketcher.Constraint("Vertical", 5),
    Sketcher.Constraint("Horizontal", 6),
    Sketcher.Constraint("Vertical", 7),
    Sketcher.Constraint("Horizontal", 8),
    Sketcher.Constraint("Vertical", 9),
    Sketcher.Constraint("Vertical", 1, 2, 6, 2),
    Sketcher.Constraint("Vertical", 5, 2, 8, 2),
    Sketcher.Constraint("DistanceY", 1, 1, 1, 2, 2.0),
    Sketcher.Constraint("DistanceY", 7, 1, 7, 2, 3.0),
    Sketcher.Constraint("Angle", 3, Q("45 deg")),
    Sketcher.Constraint("DistanceX", 0, 2, 0, 1, 11.8),
    Sketcher.Constraint("DistanceX", 2, 1, 2, 2, 5.3),
    Sketcher.Constraint("DistanceX", 4, 1, 4, 2, 4.8),
    Sketcher.Constraint("DistanceX", -1, 1, 0, 2, 57.0),
    Sketcher.Constraint("DistanceY", 0, 2, -1, 1, 33.0),
    Sketcher.Constraint("DistanceY", 6, 2, -1, 1, 24.0),
])
pad9 = body.newObject("PartDesign::Pad", "Pad008")
pad9.Profile = sketch14
pad9.Length = 80

sketch15 = body.newObject("Sketcher::SketchObject", "Sketch014")
sketch15.AttachmentSupport = (doc.getObject("XY_Plane"), [""])
sketch15.MapMode = "FlatFace"
sketch15.AttachmentOffset = App.Placement(Vector(0, 0, -24), App.Rotation())
sketch15.addGeometry([
    Part.LineSegment(Vector(-35, 61.2, 0), Vector(35, 61.2, 0)),
    Part.ArcOfCircle(Part.Circle(Vector(35, 60, 0), Vector(0, 0, 1), 1.2), math.radians(-90), math.radians(90)),
    Part.LineSegment(Vector(35, 58.8, 0), Vector(-35, 58.8, 0)),
    Part.ArcOfCircle(Part.Circle(Vector(-35, 60, 0), Vector(0, 0, 1), 1.2), math.radians(90), math.radians(270)),
], False)
sketch15.addConstraint([
    Sketcher.Constraint("Tangent", 0, 2, 1, 2),
    Sketcher.Constraint("Tangent", 1, 1, 2, 1),
    Sketcher.Constraint("Tangent", 2, 2, 3, 2),
    Sketcher.Constraint("Tangent", 3, 1, 0, 1),
    Sketcher.Constraint("Horizontal", 0),
    Sketcher.Constraint("Horizontal", 2),
    Sketcher.Constraint("Radius", 1, 1.2),
    Sketcher.Constraint("DistanceX", 0, 1, 0, 2, 70.0),
    Sketcher.Constraint("DistanceX", -1, 1, 1, 3, 35.0),
    Sketcher.Constraint("DistanceY", -1, 1, 1, 3, 60.0),
])
pocket6 = body.newObject("PartDesign::Pocket", "Pocket005")
pocket6.Profile = sketch15
pocket6.Length = 3
pocket6.Reversed = True

sketch16 = body.newObject("Sketcher::SketchObject", "Sketch015")
sketch16.AttachmentSupport = (doc.getObject("XY_Plane"), [""])
sketch16.MapMode = "FlatFace"
sketch16.AttachmentOffset = App.Placement(Vector(0, 0, -31), App.Rotation())
sketch16.addGeometry([
    Part.Circle(Vector(-31.5, -0.5, 0), Vector(0, 0, 1), 1.6),
    Part.Circle(Vector(31.5, -0.5, 0), Vector(0, 0, 1), 1.6),
], False)
sketch16.addConstraint([
    Sketcher.Constraint("Equal", 0, 1),
    Sketcher.Constraint("Symmetric", 0, 3, 1, 3, -2),
    Sketcher.Constraint("Diameter", 0, 3.2),
    Sketcher.Constraint("DistanceX", 0, 3, 1, 3, 63.0),
    Sketcher.Constraint("DistanceY", 0, 3, -1, 1, 0.5),
])
pocket7 = body.newObject("PartDesign::Pocket", "Pocket006")
pocket7.Profile = sketch16
pocket7.Type = "ThroughAll"

sketch17 = body.newObject("Sketcher::SketchObject", "Sketch016")
sketch17.AttachmentSupport = (doc.getObject("YZ_Plane"), [""])
sketch17.MapMode = "FlatFace"
sketch17.AttachmentOffset = App.Placement(Vector(0, 0, -40.5), App.Rotation())
add_polygon(sketch17, [(12.5, 0), (11.5, 0), (11.5, -31), (12.5, -31)])
add_polygon(sketch17, [(-10.5, 0), (-11.5, 0), (-11.5, -31), (-10.5, -31)])
sketch17.addConstraint([
    Sketcher.Constraint("Horizontal", 0),
    Sketcher.Constraint("Vertical", 1),
    Sketcher.Constraint("Horizontal", 2),
    Sketcher.Constraint("Vertical", 3),
    Sketcher.Constraint("Horizontal", 4),
    Sketcher.Constraint("Vertical", 5),
    Sketcher.Constraint("Horizontal", 6),
    Sketcher.Constraint("Vertical", 7),
    Sketcher.Constraint("Symmetric", 0, 2, 4, 2, -1, 1),
    Sketcher.Constraint("PointOnObject", 0, 2, -1),
    Sketcher.Constraint("Horizontal", 2, 2, 5, 2),
    Sketcher.Constraint("Equal", 2, 4),
    Sketcher.Constraint("DistanceX", 0, 2, 0, 1, 1.0),
    Sketcher.Constraint("DistanceY", 1, 2, 1, 1, 31.0),
    Sketcher.Constraint("DistanceX", 4, 2, 0, 2, 23.0),
])
pad10 = body.newObject("PartDesign::Pad", "Pad009")
pad10.Profile = sketch17
pad10.Length = 3

sketch18 = body.newObject("Sketcher::SketchObject", "Sketch017")
sketch18.AttachmentSupport = (doc.getObject("YZ_Plane"), [""])
sketch18.MapMode = "FlatFace"
sketch18.AttachmentOffset = App.Placement(Vector(0, 0, 40.5), App.Rotation())
add_polygon(sketch18, [(12.5, -31), (11.5, -31), (11.5, 0), (12.5, 0)])
add_polygon(sketch18, [(-10.5, -31), (-11.5, -31), (-11.5, 0), (-10.5, 0)])
sketch18.addConstraint([
    Sketcher.Constraint("Horizontal", 0),
    Sketcher.Constraint("Vertical", 1),
    Sketcher.Constraint("Horizontal", 2),
    Sketcher.Constraint("Vertical", 3),
    Sketcher.Constraint("Horizontal", 4),
    Sketcher.Constraint("Vertical", 5),
    Sketcher.Constraint("Horizontal", 6),
    Sketcher.Constraint("Vertical", 7),
    Sketcher.Constraint("Symmetric", 1, 2, 5, 2, -1, 1),
    Sketcher.Constraint("PointOnObject", 1, 2, -1),
    Sketcher.Constraint("Horizontal", 3, 2, 4, 2),
    Sketcher.Constraint("Equal", 2, 4),
    Sketcher.Constraint("DistanceX", 0, 2, 0, 1, 1.0),
    Sketcher.Constraint("DistanceY", 1, 1, 1, 2, 31.0),
    Sketcher.Constraint("DistanceX", 4, 2, 0, 2, 23.0),
])
pad11 = body.newObject("PartDesign::Pad", "Pad010")
pad11.Profile = sketch18
pad11.Length = 3
pad11.Reversed = True

doc.recompute()
